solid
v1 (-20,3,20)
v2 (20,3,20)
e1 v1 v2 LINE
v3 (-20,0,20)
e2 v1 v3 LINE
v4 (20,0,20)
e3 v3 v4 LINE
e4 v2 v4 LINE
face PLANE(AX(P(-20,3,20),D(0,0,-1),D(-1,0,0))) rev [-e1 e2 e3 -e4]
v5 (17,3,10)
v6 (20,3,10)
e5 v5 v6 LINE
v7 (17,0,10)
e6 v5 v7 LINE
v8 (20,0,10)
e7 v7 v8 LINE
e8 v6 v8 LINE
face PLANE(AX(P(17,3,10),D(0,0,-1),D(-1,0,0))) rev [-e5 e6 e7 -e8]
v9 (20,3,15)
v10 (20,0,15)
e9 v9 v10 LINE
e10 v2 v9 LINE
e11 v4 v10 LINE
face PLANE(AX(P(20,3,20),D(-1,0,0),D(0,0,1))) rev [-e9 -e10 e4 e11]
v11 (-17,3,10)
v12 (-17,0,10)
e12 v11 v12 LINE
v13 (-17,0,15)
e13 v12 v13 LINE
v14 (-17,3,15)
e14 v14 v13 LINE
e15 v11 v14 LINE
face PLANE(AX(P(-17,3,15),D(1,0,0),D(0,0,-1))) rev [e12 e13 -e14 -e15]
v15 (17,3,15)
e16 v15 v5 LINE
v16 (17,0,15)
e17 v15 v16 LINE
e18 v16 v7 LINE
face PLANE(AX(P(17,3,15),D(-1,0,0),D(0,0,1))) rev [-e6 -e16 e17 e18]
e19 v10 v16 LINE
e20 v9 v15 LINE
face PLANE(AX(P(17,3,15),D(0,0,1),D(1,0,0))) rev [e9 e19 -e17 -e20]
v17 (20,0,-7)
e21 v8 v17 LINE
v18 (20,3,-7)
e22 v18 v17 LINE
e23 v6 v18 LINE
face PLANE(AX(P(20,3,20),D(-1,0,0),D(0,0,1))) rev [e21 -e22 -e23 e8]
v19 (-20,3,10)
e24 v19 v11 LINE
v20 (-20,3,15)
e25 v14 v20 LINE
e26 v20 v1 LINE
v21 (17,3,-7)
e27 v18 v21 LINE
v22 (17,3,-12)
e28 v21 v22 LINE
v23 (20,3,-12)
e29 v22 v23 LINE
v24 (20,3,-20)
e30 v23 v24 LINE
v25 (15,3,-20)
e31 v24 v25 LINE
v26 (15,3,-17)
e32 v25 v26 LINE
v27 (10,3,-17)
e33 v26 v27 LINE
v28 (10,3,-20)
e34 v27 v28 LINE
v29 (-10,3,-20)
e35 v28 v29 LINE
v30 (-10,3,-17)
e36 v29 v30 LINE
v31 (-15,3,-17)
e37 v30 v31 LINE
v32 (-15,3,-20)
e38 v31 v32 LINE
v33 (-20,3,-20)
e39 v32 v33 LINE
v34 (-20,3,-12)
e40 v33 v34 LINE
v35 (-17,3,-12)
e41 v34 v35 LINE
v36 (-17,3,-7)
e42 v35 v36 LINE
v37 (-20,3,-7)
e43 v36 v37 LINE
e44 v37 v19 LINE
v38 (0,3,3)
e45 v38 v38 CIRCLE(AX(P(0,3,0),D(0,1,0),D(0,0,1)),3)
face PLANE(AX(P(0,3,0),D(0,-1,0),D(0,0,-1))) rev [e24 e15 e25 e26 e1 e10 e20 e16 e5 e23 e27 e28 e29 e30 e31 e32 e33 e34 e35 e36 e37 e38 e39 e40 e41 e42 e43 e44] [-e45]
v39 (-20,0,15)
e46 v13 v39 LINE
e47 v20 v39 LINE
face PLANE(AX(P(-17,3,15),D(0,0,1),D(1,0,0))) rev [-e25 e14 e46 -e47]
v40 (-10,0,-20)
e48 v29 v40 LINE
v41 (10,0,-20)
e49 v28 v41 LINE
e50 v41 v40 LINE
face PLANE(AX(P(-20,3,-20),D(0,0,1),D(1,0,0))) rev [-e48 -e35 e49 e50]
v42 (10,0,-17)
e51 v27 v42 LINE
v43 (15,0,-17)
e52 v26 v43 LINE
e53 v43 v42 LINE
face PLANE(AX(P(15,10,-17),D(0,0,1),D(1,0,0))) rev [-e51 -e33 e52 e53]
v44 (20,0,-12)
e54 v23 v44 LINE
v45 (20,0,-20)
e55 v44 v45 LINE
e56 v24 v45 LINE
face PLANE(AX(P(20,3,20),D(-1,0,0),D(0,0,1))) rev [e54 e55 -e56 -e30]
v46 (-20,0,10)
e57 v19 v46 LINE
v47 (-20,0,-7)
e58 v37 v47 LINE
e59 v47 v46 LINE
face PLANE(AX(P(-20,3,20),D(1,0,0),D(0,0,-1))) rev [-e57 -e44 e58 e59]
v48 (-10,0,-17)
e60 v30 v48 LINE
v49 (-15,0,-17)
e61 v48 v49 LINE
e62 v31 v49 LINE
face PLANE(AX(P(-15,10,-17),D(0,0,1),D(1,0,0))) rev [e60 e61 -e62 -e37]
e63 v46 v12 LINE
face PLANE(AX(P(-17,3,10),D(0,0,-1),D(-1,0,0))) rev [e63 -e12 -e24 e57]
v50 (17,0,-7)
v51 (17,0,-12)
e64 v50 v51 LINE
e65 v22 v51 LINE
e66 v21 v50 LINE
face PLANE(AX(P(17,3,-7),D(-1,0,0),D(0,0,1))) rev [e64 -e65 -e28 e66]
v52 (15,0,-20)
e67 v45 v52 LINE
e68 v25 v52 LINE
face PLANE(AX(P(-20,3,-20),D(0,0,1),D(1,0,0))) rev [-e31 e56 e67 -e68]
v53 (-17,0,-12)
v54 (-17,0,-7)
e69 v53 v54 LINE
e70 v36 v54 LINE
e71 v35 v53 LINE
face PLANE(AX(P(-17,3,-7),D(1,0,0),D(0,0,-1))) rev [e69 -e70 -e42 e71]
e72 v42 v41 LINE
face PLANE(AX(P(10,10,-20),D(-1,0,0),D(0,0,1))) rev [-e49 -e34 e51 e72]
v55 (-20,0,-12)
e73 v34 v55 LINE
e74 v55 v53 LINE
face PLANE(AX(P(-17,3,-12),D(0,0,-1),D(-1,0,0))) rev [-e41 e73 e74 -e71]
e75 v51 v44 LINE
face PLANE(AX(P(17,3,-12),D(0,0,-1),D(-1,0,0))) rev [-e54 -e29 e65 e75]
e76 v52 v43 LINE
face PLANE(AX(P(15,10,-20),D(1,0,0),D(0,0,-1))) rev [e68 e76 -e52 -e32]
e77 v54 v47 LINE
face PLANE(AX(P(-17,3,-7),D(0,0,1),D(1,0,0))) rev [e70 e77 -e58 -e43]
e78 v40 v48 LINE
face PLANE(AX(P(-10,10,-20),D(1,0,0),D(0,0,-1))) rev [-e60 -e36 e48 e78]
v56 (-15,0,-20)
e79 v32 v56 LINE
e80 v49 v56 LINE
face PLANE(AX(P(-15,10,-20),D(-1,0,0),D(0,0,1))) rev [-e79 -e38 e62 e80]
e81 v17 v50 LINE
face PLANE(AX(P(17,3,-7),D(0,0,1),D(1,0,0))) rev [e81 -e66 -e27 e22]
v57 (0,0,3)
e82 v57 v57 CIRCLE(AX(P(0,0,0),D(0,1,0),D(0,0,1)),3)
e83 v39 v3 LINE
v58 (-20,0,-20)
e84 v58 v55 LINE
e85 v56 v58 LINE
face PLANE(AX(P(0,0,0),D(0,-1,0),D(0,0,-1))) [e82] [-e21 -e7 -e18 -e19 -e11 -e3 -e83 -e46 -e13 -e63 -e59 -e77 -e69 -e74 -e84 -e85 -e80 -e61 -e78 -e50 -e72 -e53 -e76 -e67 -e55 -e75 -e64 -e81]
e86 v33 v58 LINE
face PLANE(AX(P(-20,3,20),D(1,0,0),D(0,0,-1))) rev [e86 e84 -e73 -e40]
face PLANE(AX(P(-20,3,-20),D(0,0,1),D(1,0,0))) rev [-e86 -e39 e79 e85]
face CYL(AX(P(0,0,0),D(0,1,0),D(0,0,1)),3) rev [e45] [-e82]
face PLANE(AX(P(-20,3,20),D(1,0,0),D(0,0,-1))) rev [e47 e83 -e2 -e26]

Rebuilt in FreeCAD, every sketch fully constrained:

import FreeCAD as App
import Part
import Sketcher
from FreeCAD import Vector
Q = App.Units.Quantity


def add_polygon(sketch, points):
    """Adds a closed chain of lines whose ends are joined by coincident constraints."""
    first, n = sketch.GeometryCount, len(points)
    for a, b in zip(points, points[1:] + points[:1]):
        sketch.addGeometry(Part.LineSegment(App.Vector(*a, 0), App.Vector(*b, 0)), False)
    for i in range(n):
        sketch.addConstraint(Sketcher.Constraint("Coincident", first + i, 2, first + (i + 1) % n, 1))

doc = App.newDocument("Part")
body = doc.addObject("PartDesign::Body", "Body")

# Sketch on XZ plane
sketch1 = body.newObject("Sketcher::SketchObject", "Sketch")
sketch1.AttachmentSupport = (doc.getObject("XZ_Plane"), [""])
sketch1.MapMode = "FlatFace"
add_polygon(sketch1, [(-20, -20), (-20, 20), (20, 20), (20, -20)])  # lines 0-3
sketch1.addConstraint([
    Sketcher.Constraint("Vertical", 0),
    Sketcher.Constraint("Horizontal", 1),
    Sketcher.Constraint("Vertical", 2),
    Sketcher.Constraint("Horizontal", 3),
    Sketcher.Constraint("Symmetric", 0, 2, 2, 2, -1, 1),
    Sketcher.Constraint("Equal", 3, 0),
    Sketcher.Constraint("DistanceX", 1, 1, 1, 2, Q("40 mm")),
])
pad1 = body.newObject("PartDesign::Pad", "Pad")
pad1.Profile = sketch1
pad1.Length = 3
pad1.Reversed = True

# Sketch on XZ plane
sketch2 = body.newObject("Sketcher::SketchObject", "Sketch001")
sketch2.AttachmentSupport = (doc.getObject("XZ_Plane"), [""])
sketch2.MapMode = "FlatFace"
sketch2.AttachmentOffset = App.Placement(Vector(0, 0, -3), App.Rotation())
sketch2.addGeometry(Part.Circle(Vector(0, 0, 0), Vector(0, 0, 1), 3), False)
sketch2.addConstraint([
    Sketcher.Constraint("Coincident", 0, 3, -1, 1),
    Sketcher.Constraint("Diameter", 0, Q("6 mm")),
])
pocket1 = body.newObject("PartDesign::Pocket", "Pocket")
pocket1.Profile = sketch2
pocket1.Length = 3
pocket1.Reversed = True

# Sketch on XZ plane
sketch3 = body.newObject("Sketcher::SketchObject", "Sketch002")
sketch3.AttachmentSupport = (doc.getObject("XZ_Plane"), [""])
sketch3.MapMode = "FlatFace"
add_polygon(sketch3, [(10, -17), (10, -20), (15, -20), (15, -17)])  # lines 0-3
add_polygon(sketch3, [(-15, -17), (-15, -20), (-10, -20), (-10, -17)])  # lines 4-7
sketch3.addConstraint([
    Sketcher.Constraint("Vertical", 0),
    Sketcher.Constraint("Horizontal", 1),
    Sketcher.Constraint("Vertical", 2),
    Sketcher.Constraint("Horizontal", 3),
    Sketcher.Constraint("Vertical", 4),
    Sketcher.Constraint("Horizontal", 5),
    Sketcher.Constraint("Vertical", 6),
    Sketcher.Constraint("Horizontal", 7),
    Sketcher.Constraint("Symmetric", 1, 2, 4, 2, -2),
    Sketcher.Constraint("Symmetric", 3, 2, 6, 2, -2),
    Sketcher.Constraint("DistanceX", 1, 1, 1, 2, Q("5 mm")),
    Sketcher.Constraint("DistanceY", 0, 2, 0, 1, Q("3 mm")),
    Sketcher.Constraint("DistanceX", -1, 1, 0, 2, Q("10 mm")),
    Sketcher.Constraint("DistanceY", 0, 2, -1, 1, Q("20 mm")),
])
pocket2 = body.newObject("PartDesign::Pocket", "Pocket001")
pocket2.Profile = sketch3
pocket2.Length = 10

# Sketch on XZ plane
sketch4 = body.newObject("Sketcher::SketchObject", "Sketch003")
sketch4.AttachmentSupport = (doc.getObject("XZ_Plane"), [""])
sketch4.MapMode = "FlatFace"
add_polygon(sketch4, [(17, 15), (17, 10), (20, 10), (20, 15)])  # lines 0-3
add_polygon(sketch4, [(17, -7), (17, -12), (20, -12), (20, -7)])  # lines 4-7
add_polygon(sketch4, [(-20, -7), (-20, -12), (-17, -12), (-17, -7)])  # lines 8-11
add_polygon(sketch4, [(-20, 15), (-20, 10), (-17, 10), (-17, 15)])  # lines 12-15
sketch4.addConstraint([
    Sketcher.Constraint("Vertical", 0),
    Sketcher.Constraint("Horizontal", 1),
    Sketcher.Constraint("Vertical", 2),
    Sketcher.Constraint("Horizontal", 3),
    Sketcher.Constraint("Vertical", 4),
    Sketcher.Constraint("Horizontal", 5),
    Sketcher.Constraint("Vertical", 6),
    Sketcher.Constraint("Horizontal", 7),
    Sketcher.Constraint("Vertical", 8),
    Sketcher.Constraint("Horizontal", 9),
    Sketcher.Constraint("Vertical", 10),
    Sketcher.Constraint("Horizontal", 11),
    Sketcher.Constraint("Vertical", 12),
    Sketcher.Constraint("Horizontal", 13),
    Sketcher.Constraint("Vertical", 14),
    Sketcher.Constraint("Horizontal", 15),
    Sketcher.Constraint("Symmetric", 5, 2, 8, 2, -2),
    Sketcher.Constraint("Symmetric", 7, 2, 10, 2, -2),
    Sketcher.Constraint("Symmetric", 1, 2, 12, 2, -2),
    Sketcher.Constraint("Symmetric", 3, 2, 14, 2, -2),
    Sketcher.Constraint("Vertical", 3, 2, 4, 2),
    Sketcher.Constraint("Vertical", 2, 2, 5, 2),
    Sketcher.Constraint("Equal", 2, 4),
    Sketcher.Constraint("DistanceX", 1, 1, 1, 2, Q("3 mm")),
    Sketcher.Constraint("DistanceY", 0, 2, 0, 1, Q("5 mm")),
    Sketcher.Constraint("DistanceX", -1, 1, 0, 2, Q("17 mm")),
    Sketcher.Constraint("DistanceY", -1, 1, 0, 2, Q("10 mm")),
    Sketcher.Constraint("DistanceY", 4, 2, -1, 1, Q("12 mm")),
])
pocket3 = body.newObject("PartDesign::Pocket", "Pocket002")
pocket3.Profile = sketch4
pocket3.Length = 3

doc.recompute()
